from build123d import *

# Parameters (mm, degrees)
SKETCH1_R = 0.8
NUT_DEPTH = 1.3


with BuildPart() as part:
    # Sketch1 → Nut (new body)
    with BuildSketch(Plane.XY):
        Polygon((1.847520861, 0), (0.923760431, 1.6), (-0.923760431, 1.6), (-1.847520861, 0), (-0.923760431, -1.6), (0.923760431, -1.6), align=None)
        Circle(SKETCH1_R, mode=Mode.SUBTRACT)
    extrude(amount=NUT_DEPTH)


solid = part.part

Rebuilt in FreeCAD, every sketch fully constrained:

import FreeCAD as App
import Part
import Sketcher
Q = App.Units.Quantity

doc = App.newDocument("Part")
params = doc.addObject("Spreadsheet::Sheet", "Params")
for row, (alias, value) in enumerate([
    ("sketch1_diameter", "1.6 mm"),
    ("pad1_length", "1.3 mm"),
], start=1):
    params.set(f"A{row}", alias)
    params.set(f"B{row}", "=" + value)
    params.setAlias(f"B{row}", alias)

body = doc.addObject("PartDesign::Body", "Body")

# Sketch on XY plane
sketch1 = body.newObject("Sketcher::SketchObject", "Sketch")
sketch1.AttachmentSupport = (doc.getObject("XY_Plane"), [""])
sketch1.MapMode = "FlatFace"
sketch1.addGeometry([
    Part.LineSegment(App.Vector(1.8, 0, 0), App.Vector(0.9, 1.6, 0)),  # 0
    Part.LineSegment(App.Vector(0.9, 1.6, 0), App.Vector(-0.9, 1.6, 0)),  # 1
    Part.LineSegment(App.Vector(-0.9, 1.6, 0), App.Vector(-1.8, 0, 0)),  # 2
    Part.LineSegment(App.Vector(-1.8, 0, 0), App.Vector(-0.9, -1.6, 0)),  # 3
    Part.LineSegment(App.Vector(-0.9, -1.6, 0), App.Vector(0.9, -1.6, 0)),  # 4
    Part.LineSegment(App.Vector(0.9, -1.6, 0), App.Vector(1.8, 0, 0)),  # 5
    Part.Circle(App.Vector(0, 0, 0), App.Vector(0, 0, 1), 0.8),  # 6
], False)
sketch1.addConstraint([
    Sketcher.Constraint("Coincident", 0, 2, 1, 1),
    Sketcher.Constraint("Coincident", 1, 2, 2, 1),
    Sketcher.Constraint("Coincident", 2, 2, 3, 1),
    Sketcher.Constraint("Coincident", 3, 2, 4, 1),
    Sketcher.Constraint("Coincident", 4, 2, 5, 1),
    Sketcher.Constraint("Coincident", 5, 2, 0, 1),
    Sketcher.Constraint("Horizontal", 1),
    Sketcher.Constraint("Horizontal", 4),
    Sketcher.Constraint("Coincident", 6, 3, -1, 1),
    Sketcher.Constraint("Symmetric", 0, 2, 3, 2, -1, 1),
    Sketcher.Constraint("Symmetric", 2, 2, 5, 2, -1, 1),
    Sketcher.Constraint("PointOnObject", 2, 2, -1),
    Sketcher.Constraint("Parallel", 2, 5),
    Sketcher.Constraint("Vertical", 1, 2, 3, 2),
    Sketcher.Constraint("Diameter", 6, 1.6),
    Sketcher.Constraint("Angle", 0, Q("120 deg")),
    Sketcher.Constraint("DistanceY", -1, 1, 0, 2, 1.6),
    Sketcher.Constraint("DistanceX", 1, 2, 1, 1, 1.847521),
])
sketch1.setExpression("Constraints[14]", "Params.sketch1_diameter")
pad1 = body.newObject("PartDesign::Pad", "Pad")
pad1.Profile = sketch1
pad1.setExpression("Length", "Params.pad1_length")

doc.recompute()
